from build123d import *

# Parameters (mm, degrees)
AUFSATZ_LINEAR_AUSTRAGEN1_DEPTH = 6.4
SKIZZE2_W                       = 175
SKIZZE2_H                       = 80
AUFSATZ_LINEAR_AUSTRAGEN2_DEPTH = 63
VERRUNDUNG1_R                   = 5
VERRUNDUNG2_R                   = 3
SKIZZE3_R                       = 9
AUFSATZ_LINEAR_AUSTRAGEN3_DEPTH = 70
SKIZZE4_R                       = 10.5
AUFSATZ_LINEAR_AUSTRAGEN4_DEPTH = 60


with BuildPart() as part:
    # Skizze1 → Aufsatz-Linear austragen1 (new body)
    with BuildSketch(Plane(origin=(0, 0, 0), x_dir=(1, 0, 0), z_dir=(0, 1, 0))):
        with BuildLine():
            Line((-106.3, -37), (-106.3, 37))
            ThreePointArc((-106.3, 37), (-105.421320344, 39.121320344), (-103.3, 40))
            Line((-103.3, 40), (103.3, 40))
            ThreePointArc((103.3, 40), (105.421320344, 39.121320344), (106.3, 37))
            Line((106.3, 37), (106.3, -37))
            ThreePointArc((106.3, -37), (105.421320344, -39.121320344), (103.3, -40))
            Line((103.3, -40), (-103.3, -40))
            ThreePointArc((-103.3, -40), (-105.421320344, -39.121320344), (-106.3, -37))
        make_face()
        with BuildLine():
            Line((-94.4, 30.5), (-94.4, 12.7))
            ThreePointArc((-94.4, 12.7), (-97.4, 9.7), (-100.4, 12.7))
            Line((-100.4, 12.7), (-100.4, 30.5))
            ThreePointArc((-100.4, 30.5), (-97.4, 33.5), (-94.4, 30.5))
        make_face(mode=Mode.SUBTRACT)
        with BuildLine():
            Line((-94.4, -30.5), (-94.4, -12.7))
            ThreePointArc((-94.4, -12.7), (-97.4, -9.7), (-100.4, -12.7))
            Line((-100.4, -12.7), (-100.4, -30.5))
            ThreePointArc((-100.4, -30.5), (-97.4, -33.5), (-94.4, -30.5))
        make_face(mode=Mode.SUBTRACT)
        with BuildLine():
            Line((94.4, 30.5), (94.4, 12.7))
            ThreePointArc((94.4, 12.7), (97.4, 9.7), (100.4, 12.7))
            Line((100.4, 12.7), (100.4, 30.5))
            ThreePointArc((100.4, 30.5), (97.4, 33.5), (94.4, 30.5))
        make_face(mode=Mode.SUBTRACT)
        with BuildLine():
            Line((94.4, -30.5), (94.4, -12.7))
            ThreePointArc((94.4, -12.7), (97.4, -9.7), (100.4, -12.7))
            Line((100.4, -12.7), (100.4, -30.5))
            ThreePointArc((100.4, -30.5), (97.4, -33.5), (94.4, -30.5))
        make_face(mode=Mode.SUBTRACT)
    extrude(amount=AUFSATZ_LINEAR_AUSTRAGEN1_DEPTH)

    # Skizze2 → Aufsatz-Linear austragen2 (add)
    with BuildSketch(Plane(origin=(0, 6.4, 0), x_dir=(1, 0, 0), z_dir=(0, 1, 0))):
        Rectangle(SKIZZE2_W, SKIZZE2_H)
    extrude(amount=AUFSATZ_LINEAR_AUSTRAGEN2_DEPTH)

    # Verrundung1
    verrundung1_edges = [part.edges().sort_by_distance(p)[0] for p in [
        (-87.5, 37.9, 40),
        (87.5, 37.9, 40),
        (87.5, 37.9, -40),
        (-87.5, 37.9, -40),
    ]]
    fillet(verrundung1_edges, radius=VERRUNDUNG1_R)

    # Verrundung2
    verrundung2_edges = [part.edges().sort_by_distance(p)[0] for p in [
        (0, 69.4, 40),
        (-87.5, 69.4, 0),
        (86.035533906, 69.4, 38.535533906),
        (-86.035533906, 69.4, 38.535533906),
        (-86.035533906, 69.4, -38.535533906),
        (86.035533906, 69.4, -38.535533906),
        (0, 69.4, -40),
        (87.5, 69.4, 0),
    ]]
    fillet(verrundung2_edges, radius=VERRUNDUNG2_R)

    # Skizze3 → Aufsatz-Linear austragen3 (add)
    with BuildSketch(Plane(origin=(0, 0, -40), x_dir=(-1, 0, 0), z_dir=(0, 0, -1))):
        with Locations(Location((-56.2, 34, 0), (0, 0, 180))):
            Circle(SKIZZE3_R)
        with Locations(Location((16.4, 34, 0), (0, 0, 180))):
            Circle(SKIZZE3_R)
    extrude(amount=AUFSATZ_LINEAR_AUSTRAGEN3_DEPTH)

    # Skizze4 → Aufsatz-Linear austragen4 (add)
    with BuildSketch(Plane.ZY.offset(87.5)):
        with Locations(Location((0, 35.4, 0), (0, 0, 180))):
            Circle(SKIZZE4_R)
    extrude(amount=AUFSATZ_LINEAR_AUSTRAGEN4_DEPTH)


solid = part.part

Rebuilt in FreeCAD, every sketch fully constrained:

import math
import FreeCAD as App
import Part
import Sketcher
Q = App.Units.Quantity


def edges_at(feature, points):
    """Names of the edges that pass closest to the given points."""
    edges = feature.Shape.Edges
    near = lambda p: min(range(len(edges)), key=lambda i: edges[i].distToShape(Part.Vertex(*p))[0])
    return sorted({f"Edge{near(p) + 1}" for p in points})

doc = App.newDocument("Part")
body = doc.addObject("PartDesign::Body", "Body")

# Sketch on XZ plane
sketch1 = doc.addObject("Sketcher::SketchObject", "Sketch")
body.addObject(sketch1)
sketch1.AttachmentSupport = (doc.XZ_Plane, [""])
sketch1.MapMode = "FlatFace"
sketch1.addGeometry(Part.LineSegment(App.Vector(-106.3, -37, 0), App.Vector(-106.3, 37, 0)), False)
sketch1.addGeometry(Part.ArcOfCircle(Part.Circle(App.Vector(-103.3, 37, 0), App.Vector(0, 0, 1), 3), math.radians(90), math.radians(180)), False)
sketch1.addGeometry(Part.LineSegment(App.Vector(-103.3, 40, 0), App.Vector(103.3, 40, 0)), False)
sketch1.addGeometry(Part.ArcOfCircle(Part.Circle(App.Vector(103.3, 37, 0), App.Vector(0, 0, 1), 3), math.radians(0), math.radians(90)), False)
sketch1.addGeometry(Part.LineSegment(App.Vector(106.3, 37, 0), App.Vector(106.3, -37, 0)), False)
sketch1.addGeometry(Part.ArcOfCircle(Part.Circle(App.Vector(103.3, -37, 0), App.Vector(0, 0, 1), 3), math.radians(-90), math.radians(0)), False)
sketch1.addGeometry(Part.LineSegment(App.Vector(103.3, -40, 0), App.Vector(-103.3, -40, 0)), False)
sketch1.addGeometry(Part.ArcOfCircle(Part.Circle(App.Vector(-103.3, -37, 0), App.Vector(0, 0, 1), 3), math.radians(180), math.radians(270)), False)
sketch1.addGeometry(Part.LineSegment(App.Vector(94.4, 30.5, 0), App.Vector(94.4, 12.7, 0)), False)
sketch1.addGeometry(Part.ArcOfCircle(Part.Circle(App.Vector(97.4, 12.7, 0), App.Vector(0, 0, 1), 3), math.radians(180), math.radians(360)), False)
sketch1.addGeometry(Part.LineSegment(App.Vector(100.4, 12.7, 0), App.Vector(100.4, 30.5, 0)), False)
sketch1.addGeometry(Part.ArcOfCircle(Part.Circle(App.Vector(97.4, 30.5, 0), App.Vector(0, 0, 1), 3), math.radians(0), math.radians(180)), False)
sketch1.addGeometry(Part.ArcOfCircle(Part.Circle(App.Vector(-97.4, 30.5, 0), App.Vector(0, 0, 1), 3), math.radians(0), math.radians(180)), False)
sketch1.addGeometry(Part.LineSegment(App.Vector(-100.4, 30.5, 0), App.Vector(-100.4, 12.7, 0)), False)
sketch1.addGeometry(Part.ArcOfCircle(Part.Circle(App.Vector(-97.4, 12.7, 0), App.Vector(0, 0, 1), 3), math.radians(180), math.radians(360)), False)
sketch1.addGeometry(Part.LineSegment(App.Vector(-94.4, 12.7, 0), App.Vector(-94.4, 30.5, 0)), False)
sketch1.addGeometry(Part.ArcOfCircle(Part.Circle(App.Vector(97.4, -30.5, 0), App.Vector(0, 0, 1), 3), math.radians(180), math.radians(360)), False)
sketch1.addGeometry(Part.LineSegment(App.Vector(100.4, -30.5, 0), App.Vector(100.4, -12.7, 0)), False)
sketch1.addGeometry(Part.ArcOfCircle(Part.Circle(App.Vector(97.4, -12.7, 0), App.Vector(0, 0, 1), 3), math.radians(0), math.radians(180)), False)
sketch1.addGeometry(Part.LineSegment(App.Vector(94.4, -12.7, 0), App.Vector(94.4, -30.5, 0)), False)
sketch1.addGeometry(Part.LineSegment(App.Vector(-94.4, -30.5, 0), App.Vector(-94.4, -12.7, 0)), False)
sketch1.addGeometry(Part.ArcOfCircle(Part.Circle(App.Vector(-97.4, -12.7, 0), App.Vector(0, 0, 1), 3), math.radians(0), math.radians(180)), False)
sketch1.addGeometry(Part.LineSegment(App.Vector(-100.4, -12.7, 0), App.Vector(-100.4, -30.5, 0)), False)
sketch1.addGeometry(Part.ArcOfCircle(Part.Circle(App.Vector(-97.4, -30.5, 0), App.Vector(0, 0, 1), 3), math.radians(180), math.radians(360)), False)
sketch1.addConstraint(Sketcher.Constraint("Tangent", 0, 2, 1, 2))
sketch1.addConstraint(Sketcher.Constraint("Tangent", 1, 1, 2, 1))
sketch1.addConstraint(Sketcher.Constraint("Tangent", 2, 2, 3, 2))
sketch1.addConstraint(Sketcher.Constraint("Tangent", 3, 1, 4, 1))
sketch1.addConstraint(Sketcher.Constraint("Tangent", 4, 2, 5, 2))
sketch1.addConstraint(Sketcher.Constraint("Tangent", 5, 1, 6, 1))
sketch1.addConstraint(Sketcher.Constraint("Tangent", 6, 2, 7, 2))
sketch1.addConstraint(Sketcher.Constraint("Tangent", 7, 1, 0, 1))
sketch1.addConstraint(Sketcher.Constraint("Tangent", 8, 2, 9, 1))
sketch1.addConstraint(Sketcher.Constraint("Tangent", 9, 2, 10, 1))
sketch1.addConstraint(Sketcher.Constraint("Tangent", 10, 2, 11, 1))
sketch1.addConstraint(Sketcher.Constraint("Tangent", 11, 2, 8, 1))
sketch1.addConstraint(Sketcher.Constraint("Tangent", 12, 2, 13, 1))
sketch1.addConstraint(Sketcher.Constraint("Tangent", 13, 2, 14, 1))
sketch1.addConstraint(Sketcher.Constraint("Tangent", 14, 2, 15, 1))
sketch1.addConstraint(Sketcher.Constraint("Tangent", 15, 2, 12, 1))
sketch1.addConstraint(Sketcher.Constraint("Tangent", 16, 2, 17, 1))
sketch1.addConstraint(Sketcher.Constraint("Tangent", 17, 2, 18, 1))
sketch1.addConstraint(Sketcher.Constraint("Tangent", 18, 2, 19, 1))
sketch1.addConstraint(Sketcher.Constraint("Tangent", 19, 2, 16, 1))
sketch1.addConstraint(Sketcher.Constraint("Tangent", 20, 2, 21, 1))
sketch1.addConstraint(Sketcher.Constraint("Tangent", 21, 2, 22, 1))
sketch1.addConstraint(Sketcher.Constraint("Tangent", 22, 2, 23, 1))
sketch1.addConstraint(Sketcher.Constraint("Tangent", 23, 2, 20, 1))
sketch1.addConstraint(Sketcher.Constraint("Vertical", 0))
sketch1.addConstraint(Sketcher.Constraint("Horizontal", 2))
sketch1.addConstraint(Sketcher.Constraint("Vertical", 4))
sketch1.addConstraint(Sketcher.Constraint("Horizontal", 6))
sketch1.addConstraint(Sketcher.Constraint("Vertical", 8))
sketch1.addConstraint(Sketcher.Constraint("Vertical", 10))
sketch1.addConstraint(Sketcher.Constraint("Vertical", 13))
sketch1.addConstraint(Sketcher.Constraint("Vertical", 15))
sketch1.addConstraint(Sketcher.Constraint("Vertical", 17))
sketch1.addConstraint(Sketcher.Constraint("Vertical", 19))
sketch1.addConstraint(Sketcher.Constraint("Vertical", 20))
sketch1.addConstraint(Sketcher.Constraint("Vertical", 22))
sketch1.addConstraint(Sketcher.Constraint("Equal", 1, 3))
sketch1.addConstraint(Sketcher.Constraint("Equal", 3, 5))
sketch1.addConstraint(Sketcher.Constraint("Equal", 5, 7))
sketch1.addConstraint(Sketcher.Constraint("Equal", 7, 9))
sketch1.addConstraint(Sketcher.Constraint("Equal", 11, 12))
sketch1.addConstraint(Sketcher.Constraint("Equal", 14, 16))
sketch1.addConstraint(Sketcher.Constraint("Equal", 18, 21))
sketch1.addConstraint(Sketcher.Constraint("Symmetric", 1, 3, 5, 3, -1, 1))
sketch1.addConstraint(Sketcher.Constraint("Symmetric", 12, 3, 16, 3, -1, 1))
sketch1.addConstraint(Sketcher.Constraint("Symmetric", 9, 3, 21, 3, -1, 1))
sketch1.addConstraint(Sketcher.Constraint("Symmetric", 11, 3, 12, 3, -2))
sketch1.addConstraint(Sketcher.Constraint("Horizontal", 9, 3, 14, 3))
sketch1.addConstraint(Sketcher.Constraint("Horizontal", 18, 3, 21, 3))
sketch1.addConstraint(Sketcher.Constraint("Horizontal", 16, 3, 23, 3))
sketch1.addConstraint(Sketcher.Constraint("Radius", 1, Q("3 mm")))
sketch1.addConstraint(Sketcher.Constraint("DistanceY", 0, 1, 0, 2, Q("74 mm")))
sketch1.addConstraint(Sketcher.Constraint("DistanceX", 2, 1, 2, 2, Q("206.6 mm")))
sketch1.addConstraint(Sketcher.Constraint("DistanceY", 8, 2, 8, 1, Q("17.8 mm")))
sketch1.addConstraint(Sketcher.Constraint("DistanceY", 16, 3, 11, 3, Q("61 mm")))
sketch1.addConstraint(Sketcher.Constraint("DistanceX", -1, 1, 9, 3, Q("97.4 mm")))
pad1 = doc.addObject("PartDesign::Pad", "Pad")
body.addObject(pad1)
pad1.Profile = sketch1
pad1.Length = 6.4
pad1.Reversed = True

# Sketch on XZ plane
sketch2 = doc.addObject("Sketcher::SketchObject", "Sketch001")
body.addObject(sketch2)
sketch2.AttachmentSupport = (doc.XZ_Plane, [""])
sketch2.MapMode = "FlatFace"
sketch2.AttachmentOffset = App.Placement(App.Vector(0, 0, -6.4), App.Rotation())
sketch2.addGeometry(Part.LineSegment(App.Vector(-88, -40, 0), App.Vector(-88, 40, 0)), False)
sketch2.addGeometry(Part.LineSegment(App.Vector(-88, 40, 0), App.Vector(88, 40, 0)), False)
sketch2.addGeometry(Part.LineSegment(App.Vector(88, 40, 0), App.Vector(88, -40, 0)), False)
sketch2.addGeometry(Part.LineSegment(App.Vector(88, -40, 0), App.Vector(-88, -40, 0)), False)
sketch2.addConstraint(Sketcher.Constraint("Coincident", 0, 2, 1, 1))
sketch2.addConstraint(Sketcher.Constraint("Coincident", 1, 2, 2, 1))
sketch2.addConstraint(Sketcher.Constraint("Coincident", 2, 2, 3, 1))
sketch2.addConstraint(Sketcher.Constraint("Coincident", 3, 2, 0, 1))
sketch2.addConstraint(Sketcher.Constraint("Vertical", 0))
sketch2.addConstraint(Sketcher.Constraint("Horizontal", 1))
sketch2.addConstraint(Sketcher.Constraint("Vertical", 2))
sketch2.addConstraint(Sketcher.Constraint("Horizontal", 3))
sketch2.addConstraint(Sketcher.Constraint("Symmetric", 0, 2, 2, 2, -1, 1))
sketch2.addConstraint(Sketcher.Constraint("DistanceX", 1, 1, 1, 2, Q("175 mm")))
sketch2.addConstraint(Sketcher.Constraint("DistanceY", 0, 1, 0, 2, Q("80 mm")))
pad2 = doc.addObject("PartDesign::Pad", "Pad001")
body.addObject(pad2)
pad2.Profile = sketch2
pad2.Length = 63
pad2.Reversed = True
doc.recompute()

fillet = doc.addObject("PartDesign::Fillet", "Fillet")
body.addObject(fillet)
fillet.Base = (pad2, edges_at(pad2, [
    (-87.5, 37.9, 40),
    (87.5, 37.9, 40),
    (87.5, 37.9, -40),
    (-87.5, 37.9, -40),
]))
fillet.Radius = 5
doc.recompute()

fillet2 = doc.addObject("PartDesign::Fillet", "Fillet001")
body.addObject(fillet2)
fillet2.Base = (fillet, edges_at(fillet, [
    (0, 69.4, 40),
    (-87.5, 69.4, 0),
    (86.036, 69.4, 38.536),
    (-86.036, 69.4, 38.536),
    (-86.036, 69.4, -38.536),
    (86.036, 69.4, -38.536),
    (0, 69.4, -40),
    (87.5, 69.4, 0),
]))
fillet2.Radius = 3

# Sketch on XY plane
sketch3 = doc.addObject("Sketcher::SketchObject", "Sketch002")
body.addObject(sketch3)
sketch3.AttachmentSupport = (doc.XY_Plane, [""])
sketch3.MapMode = "FlatFace"
sketch3.AttachmentOffset = App.Placement(App.Vector(0, 0, -40), App.Rotation())
sketch3.addGeometry(Part.Circle(App.Vector(56, 34, 0), App.Vector(0, 0, 1), 9), False)
sketch3.addGeometry(Part.Circle(App.Vector(-16, 34, 0), App.Vector(0, 0, 1), 9), False)
sketch3.addConstraint(Sketcher.Constraint("Equal", 0, 1))
sketch3.addConstraint(Sketcher.Constraint("Horizontal", 0, 3, 1, 3))
sketch3.addConstraint(Sketcher.Constraint("Diameter", 0, Q("18 mm")))
sketch3.addConstraint(Sketcher.Constraint("DistanceY", -1, 1, 0, 3, Q("34 mm")))
sketch3.addConstraint(Sketcher.Constraint("DistanceX", -1, 1, 0, 3, Q("56.2 mm")))
sketch3.addConstraint(Sketcher.Constraint("DistanceX", 1, 3, -1, 1, Q("16.4 mm")))
pad3 = doc.addObject("PartDesign::Pad", "Pad002")
body.addObject(pad3)
pad3.Profile = sketch3
pad3.Length = 70
pad3.Reversed = True

# Sketch on YZ plane
sketch4 = doc.addObject("Sketcher::SketchObject", "Sketch003")
body.addObject(sketch4)
sketch4.AttachmentSupport = (doc.YZ_Plane, [""])
sketch4.MapMode = "FlatFace"
sketch4.AttachmentOffset = App.Placement(App.Vector(0, 0, -87.5), App.Rotation())
sketch4.addGeometry(Part.Circle(App.Vector(35, 0, 0), App.Vector(0, 0, 1), 10), False)
sketch4.addConstraint(Sketcher.Constraint("PointOnObject", 0, 3, -1))
sketch4.addConstraint(Sketcher.Constraint("Diameter", 0, Q("21 mm")))
sketch4.addConstraint(Sketcher.Constraint("DistanceX", -1, 1, 0, 3, Q("35.4 mm")))
pad4 = doc.addObject("PartDesign::Pad", "Pad003")
body.addObject(pad4)
pad4.Profile = sketch4
pad4.Length = 60
pad4.Reversed = True

doc.recompute()
